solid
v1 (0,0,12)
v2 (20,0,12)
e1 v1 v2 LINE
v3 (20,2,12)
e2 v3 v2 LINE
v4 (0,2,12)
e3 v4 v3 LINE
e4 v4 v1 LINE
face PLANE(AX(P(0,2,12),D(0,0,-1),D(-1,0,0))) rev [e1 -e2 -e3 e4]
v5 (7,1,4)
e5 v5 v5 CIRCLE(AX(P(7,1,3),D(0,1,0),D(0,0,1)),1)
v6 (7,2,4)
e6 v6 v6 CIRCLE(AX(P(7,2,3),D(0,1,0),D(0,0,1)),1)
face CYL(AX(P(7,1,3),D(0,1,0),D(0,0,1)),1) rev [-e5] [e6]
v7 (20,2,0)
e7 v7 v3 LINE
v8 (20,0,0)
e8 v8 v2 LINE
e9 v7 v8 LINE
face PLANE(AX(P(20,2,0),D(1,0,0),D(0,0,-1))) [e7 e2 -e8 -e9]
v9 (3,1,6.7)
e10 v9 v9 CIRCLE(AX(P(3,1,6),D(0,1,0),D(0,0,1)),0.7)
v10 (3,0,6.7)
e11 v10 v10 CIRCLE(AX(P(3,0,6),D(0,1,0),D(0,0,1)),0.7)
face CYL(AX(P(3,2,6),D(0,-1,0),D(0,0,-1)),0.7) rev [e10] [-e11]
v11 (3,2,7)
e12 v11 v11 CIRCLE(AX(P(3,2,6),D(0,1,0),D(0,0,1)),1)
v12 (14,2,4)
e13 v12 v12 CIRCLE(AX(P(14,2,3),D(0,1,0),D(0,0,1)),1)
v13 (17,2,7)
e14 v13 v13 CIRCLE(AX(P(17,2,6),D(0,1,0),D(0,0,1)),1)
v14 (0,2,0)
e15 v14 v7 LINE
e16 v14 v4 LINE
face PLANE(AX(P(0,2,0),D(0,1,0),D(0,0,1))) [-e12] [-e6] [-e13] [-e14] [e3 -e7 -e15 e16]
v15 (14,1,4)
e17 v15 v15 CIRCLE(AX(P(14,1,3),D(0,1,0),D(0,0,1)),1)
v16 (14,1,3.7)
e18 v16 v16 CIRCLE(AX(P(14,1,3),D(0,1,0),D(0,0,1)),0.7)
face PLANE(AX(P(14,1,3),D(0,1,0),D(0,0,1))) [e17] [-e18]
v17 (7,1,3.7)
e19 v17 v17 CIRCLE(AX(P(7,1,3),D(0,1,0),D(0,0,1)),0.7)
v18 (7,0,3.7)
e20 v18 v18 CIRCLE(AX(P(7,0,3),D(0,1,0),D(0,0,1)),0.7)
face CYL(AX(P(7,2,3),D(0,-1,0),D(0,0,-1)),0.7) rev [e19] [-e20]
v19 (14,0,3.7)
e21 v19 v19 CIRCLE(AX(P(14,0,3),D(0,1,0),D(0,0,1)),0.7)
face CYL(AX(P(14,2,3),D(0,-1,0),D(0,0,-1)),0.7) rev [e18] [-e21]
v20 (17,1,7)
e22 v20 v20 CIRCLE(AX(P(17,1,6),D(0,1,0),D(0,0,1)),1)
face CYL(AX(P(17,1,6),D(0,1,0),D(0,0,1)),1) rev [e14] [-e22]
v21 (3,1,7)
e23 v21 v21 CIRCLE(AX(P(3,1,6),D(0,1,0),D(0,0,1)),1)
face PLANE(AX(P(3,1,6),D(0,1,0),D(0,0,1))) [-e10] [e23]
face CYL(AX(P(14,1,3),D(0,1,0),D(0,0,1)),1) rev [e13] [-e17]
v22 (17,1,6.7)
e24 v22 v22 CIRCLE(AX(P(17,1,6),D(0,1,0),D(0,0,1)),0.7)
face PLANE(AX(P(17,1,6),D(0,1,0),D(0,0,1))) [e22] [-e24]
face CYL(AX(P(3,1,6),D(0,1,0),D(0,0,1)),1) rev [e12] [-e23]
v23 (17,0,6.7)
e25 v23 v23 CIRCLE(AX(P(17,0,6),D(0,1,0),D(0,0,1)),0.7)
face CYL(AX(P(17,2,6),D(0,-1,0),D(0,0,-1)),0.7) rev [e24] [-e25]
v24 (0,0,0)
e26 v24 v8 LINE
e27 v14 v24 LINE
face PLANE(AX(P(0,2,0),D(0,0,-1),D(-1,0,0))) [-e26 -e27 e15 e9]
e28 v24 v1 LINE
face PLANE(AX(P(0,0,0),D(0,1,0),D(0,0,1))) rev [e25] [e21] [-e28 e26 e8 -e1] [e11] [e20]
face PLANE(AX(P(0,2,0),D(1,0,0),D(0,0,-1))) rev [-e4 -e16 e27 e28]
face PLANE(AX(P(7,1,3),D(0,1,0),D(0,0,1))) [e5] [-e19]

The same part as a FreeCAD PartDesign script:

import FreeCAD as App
import Part
import Sketcher

V = App.Vector
Q = App.Units.Quantity


def add_polygon(sketch, points):
    """Adds a closed chain of lines whose ends are joined by coincident constraints."""
    first, n = sketch.GeometryCount, len(points)
    for a, b in zip(points, points[1:] + points[:1]):
        sketch.addGeometry(Part.LineSegment(App.Vector(*a, 0), App.Vector(*b, 0)), False)
    for i in range(n):
        sketch.addConstraint(Sketcher.Constraint("Coincident", first + i, 2, first + (i + 1) % n, 1))

doc = App.newDocument("Part")
body = doc.addObject("PartDesign::Body", "Body")

sketch1 = body.newObject("Sketcher::SketchObject", "Sketch")
sketch1.AttachmentSupport = (doc.getObject("XZ_Plane"), [""])
sketch1.MapMode = "FlatFace"
add_polygon(sketch1, [(0, 0), (0, 12), (20, 12), (20, 0)])
sketch1.addGeometry(Part.Circle(V(3, 6, 0), V(0, 0, 1), 0.7), False)
sketch1.addGeometry(Part.Circle(V(17, 6, 0), V(0, 0, 1), 0.7), False)
sketch1.addGeometry(Part.Circle(V(7, 3, 0), V(0, 0, 1), 0.7), False)
sketch1.addGeometry(Part.Circle(V(14, 3, 0), V(0, 0, 1), 0.7), False)
sketch1.addConstraint([
    Sketcher.Constraint("Vertical", 0),
    Sketcher.Constraint("Horizontal", 1),
    Sketcher.Constraint("Vertical", 2),
    Sketcher.Constraint("Horizontal", 3),
    Sketcher.Constraint("Coincident", 3, 2, -1, 1),
    Sketcher.Constraint("Equal", 4, 5),
    Sketcher.Constraint("Equal", 5, 6),
    Sketcher.Constraint("Equal", 6, 7),
    Sketcher.Constraint("Horizontal", 4, 3, 5, 3),
    Sketcher.Constraint("Horizontal", 6, 3, 7, 3),
    Sketcher.Constraint("Diameter", 4, Q("1.4 mm")),
    Sketcher.Constraint("DistanceX", 1, 1, 1, 2, Q("20 mm")),
    Sketcher.Constraint("DistanceY", 0, 1, 0, 2, Q("12 mm")),
    Sketcher.Constraint("DistanceX", -1, 1, 4, 3, Q("3 mm")),
    Sketcher.Constraint("DistanceY", -1, 1, 4, 3, Q("6 mm")),
    Sketcher.Constraint("DistanceX", -1, 1, 5, 3, Q("17 mm")),
    Sketcher.Constraint("DistanceX", -1, 1, 6, 3, Q("7 mm")),
    Sketcher.Constraint("DistanceY", -1, 1, 6, 3, Q("3 mm")),
    Sketcher.Constraint("DistanceX", -1, 1, 7, 3, Q("14 mm")),
])
pad1 = body.newObject("PartDesign::Pad", "Pad")
pad1.Profile = sketch1
pad1.Length = 2
pad1.Reversed = True

sketch2 = body.newObject("Sketcher::SketchObject", "Sketch001")
sketch2.AttachmentSupport = (doc.getObject("XZ_Plane"), [""])
sketch2.MapMode = "FlatFace"
sketch2.AttachmentOffset = App.Placement(V(0, 0, -2), App.Rotation())
sketch2.addGeometry([
    Part.Circle(V(3, 6, 0), V(0, 0, 1), 1),
    Part.Circle(V(7, 3, 0), V(0, 0, 1), 1),
    Part.Circle(V(14, 3, 0), V(0, 0, 1), 1),
    Part.Circle(V(17, 6, 0), V(0, 0, 1), 1),
], False)
sketch2.addConstraint([
    Sketcher.Constraint("Equal", 0, 1),
    Sketcher.Constraint("Equal", 1, 2),
    Sketcher.Constraint("Equal", 2, 3),
    Sketcher.Constraint("Horizontal", 1, 3, 2, 3),
    Sketcher.Constraint("Horizontal", 0, 3, 3, 3),
    Sketcher.Constraint("Diameter", 0, Q("2 mm")),
    Sketcher.Constraint("DistanceX", -1, 1, 0, 3, Q("3 mm")),
    Sketcher.Constraint("DistanceY", -1, 1, 0, 3, Q("6 mm")),
    Sketcher.Constraint("DistanceX", -1, 1, 1, 3, Q("7 mm")),
    Sketcher.Constraint("DistanceY", -1, 1, 1, 3, Q("3 mm")),
    Sketcher.Constraint("DistanceX", -1, 1, 2, 3, Q("14 mm")),
    Sketcher.Constraint("DistanceX", -1, 1, 3, 3, Q("17 mm")),
])
pocket1 = body.newObject("PartDesign::Pocket", "Pocket")
pocket1.Profile = sketch2
pocket1.Length = 1
pocket1.Reversed = True

doc.recompute()
